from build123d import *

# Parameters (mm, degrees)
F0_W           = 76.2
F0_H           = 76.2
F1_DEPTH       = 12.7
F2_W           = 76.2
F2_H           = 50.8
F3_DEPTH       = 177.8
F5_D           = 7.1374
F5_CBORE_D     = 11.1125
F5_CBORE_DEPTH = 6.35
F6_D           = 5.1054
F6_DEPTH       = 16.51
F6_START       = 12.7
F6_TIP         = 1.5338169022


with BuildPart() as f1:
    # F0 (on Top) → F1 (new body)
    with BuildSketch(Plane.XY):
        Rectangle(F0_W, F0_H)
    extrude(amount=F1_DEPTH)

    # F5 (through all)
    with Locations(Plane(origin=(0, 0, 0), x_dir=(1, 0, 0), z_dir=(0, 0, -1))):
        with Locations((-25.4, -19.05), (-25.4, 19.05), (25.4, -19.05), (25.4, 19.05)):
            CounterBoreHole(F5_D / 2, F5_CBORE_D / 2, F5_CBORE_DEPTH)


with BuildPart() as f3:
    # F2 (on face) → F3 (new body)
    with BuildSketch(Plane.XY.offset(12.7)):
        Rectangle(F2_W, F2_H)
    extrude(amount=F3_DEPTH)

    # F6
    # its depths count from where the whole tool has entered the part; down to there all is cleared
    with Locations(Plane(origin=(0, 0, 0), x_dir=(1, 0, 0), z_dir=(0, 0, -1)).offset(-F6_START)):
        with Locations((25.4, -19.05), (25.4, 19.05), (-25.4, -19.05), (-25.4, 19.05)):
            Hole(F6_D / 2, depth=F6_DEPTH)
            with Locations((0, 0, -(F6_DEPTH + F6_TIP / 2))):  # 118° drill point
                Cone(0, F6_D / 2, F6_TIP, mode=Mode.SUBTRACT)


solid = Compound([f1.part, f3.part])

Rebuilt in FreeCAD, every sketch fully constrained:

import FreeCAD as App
import Part
import Sketcher
from FreeCAD import Vector
Q = App.Units.Quantity


def add_polygon(sketch, points):
    """Adds a closed chain of lines whose ends are joined by coincident constraints."""
    first, n = sketch.GeometryCount, len(points)
    for a, b in zip(points, points[1:] + points[:1]):
        sketch.addGeometry(Part.LineSegment(App.Vector(*a, 0), App.Vector(*b, 0)), False)
    for i in range(n):
        sketch.addConstraint(Sketcher.Constraint("Coincident", first + i, 2, first + (i + 1) % n, 1))

doc = App.newDocument("Part")
body = doc.addObject("PartDesign::Body", "Body")

sketch1 = doc.addObject("Sketcher::SketchObject", "Sketch")
body.addObject(sketch1)
sketch1.AttachmentSupport = (doc.XY_Plane, [""])
sketch1.MapMode = "FlatFace"
add_polygon(sketch1, [(-38, 38), (-38, -38), (38, -38), (38, 38)])
sketch1.addConstraint([
    Sketcher.Constraint("Vertical", 0),
    Sketcher.Constraint("Horizontal", 1),
    Sketcher.Constraint("Vertical", 2),
    Sketcher.Constraint("Horizontal", 3),
    Sketcher.Constraint("Symmetric", 0, 2, 2, 2, -1, 1),
    Sketcher.Constraint("Equal", 3, 0),
    Sketcher.Constraint("DistanceX", 1, 1, 1, 2, Q("3 in")),
])
pad1 = doc.addObject("PartDesign::Pad", "Pad")
body.addObject(pad1)
pad1.Profile = sketch1
pad1.Length = Q("0.5 in")

sketch2 = doc.addObject("Sketcher::SketchObject", "Sketch001")
body.addObject(sketch2)
sketch2.AttachmentSupport = (doc.XY_Plane, [""])
sketch2.MapMode = "FlatFace"
sketch2.addGeometry([
    Part.Circle(Vector(-25.4, 19.1, 0), Vector(0, 0, 1), 3.6),
    Part.Circle(Vector(-25.4, -19.1, 0), Vector(0, 0, 1), 3.6),
    Part.Circle(Vector(25.4, 19.1, 0), Vector(0, 0, 1), 3.6),
    Part.Circle(Vector(25.4, -19.1, 0), Vector(0, 0, 1), 3.6),
], False)
sketch2.addConstraint([
    Sketcher.Constraint("Equal", 0, 1),
    Sketcher.Constraint("Equal", 1, 2),
    Sketcher.Constraint("Equal", 2, 3),
    Sketcher.Constraint("Symmetric", 1, 3, 2, 3, -1, 1),
    Sketcher.Constraint("Symmetric", 0, 3, 3, 3, -1, 1),
    Sketcher.Constraint("Symmetric", 0, 3, 2, 3, -2),
    Sketcher.Constraint("Diameter", 0, Q("0.281 in")),
    Sketcher.Constraint("DistanceX", 0, 3, -1, 1, Q("1 in")),
    Sketcher.Constraint("DistanceY", 1, 3, 0, 3, Q("1.5 in")),
])
doc.recompute()
hole = doc.addObject("PartDesign::Hole", "Hole")
body.addObject(hole)
hole.Profile = sketch2
hole.ThreadType = "None"
hole.Diameter = Q("0.281 in")
hole.DepthType = "ThroughAll"
hole.HoleCutType = "Counterbore"
hole.HoleCutDiameter = Q("0.4375 in")
hole.HoleCutDepth = Q("0.25 in")
hole.Reversed = True
body2 = doc.addObject("PartDesign::Body", "Body001")

sketch3 = doc.addObject("Sketcher::SketchObject", "Sketch002")
body2.addObject(sketch3)
sketch3.AttachmentSupport = (doc.getObject("XY_Plane001"), [""])
sketch3.MapMode = "FlatFace"
sketch3.AttachmentOffset = App.Placement(Vector(0, 0, 0.5 * 25.4), App.Rotation())
add_polygon(sketch3, [(-38, 25), (-38, -25), (38, -25), (38, 25)])
sketch3.addConstraint([
    Sketcher.Constraint("Vertical", 0),
    Sketcher.Constraint("Horizontal", 1),
    Sketcher.Constraint("Vertical", 2),
    Sketcher.Constraint("Horizontal", 3),
    Sketcher.Constraint("Symmetric", 0, 2, 2, 2, -1, 1),
    Sketcher.Constraint("DistanceX", 1, 1, 1, 2, Q("3 in")),
    Sketcher.Constraint("DistanceY", 0, 2, 0, 1, Q("2 in")),
])
pad2 = doc.addObject("PartDesign::Pad", "Pad001")
body2.addObject(pad2)
pad2.Profile = sketch3
pad2.Length = Q("7 in")

sketch4 = doc.addObject("Sketcher::SketchObject", "Sketch003")
body2.addObject(sketch4)
sketch4.AttachmentSupport = (doc.getObject("XY_Plane001"), [""])
sketch4.MapMode = "FlatFace"
sketch4.AttachmentOffset = App.Placement(Vector(0, 0, 0.5 * 25.4), App.Rotation())
sketch4.addGeometry([
    Part.Circle(Vector(25.4, 19.1, 0), Vector(0, 0, 1), 2.6),
    Part.Circle(Vector(25.4, -19.1, 0), Vector(0, 0, 1), 2.6),
    Part.Circle(Vector(-25.4, 19.1, 0), Vector(0, 0, 1), 2.6),
    Part.Circle(Vector(-25.4, -19.1, 0), Vector(0, 0, 1), 2.6),
], False)
sketch4.addConstraint([
    Sketcher.Constraint("Equal", 0, 1),
    Sketcher.Constraint("Equal", 1, 2),
    Sketcher.Constraint("Equal", 2, 3),
    Sketcher.Constraint("Symmetric", 1, 3, 2, 3, -1, 1),
    Sketcher.Constraint("Symmetric", 0, 3, 3, 3, -1, 1),
    Sketcher.Constraint("Symmetric", 0, 3, 2, 3, -2),
    Sketcher.Constraint("Diameter", 0, Q("0.201 in")),
    Sketcher.Constraint("DistanceX", -1, 1, 0, 3, Q("1 in")),
    Sketcher.Constraint("DistanceY", 1, 3, 0, 3, Q("1.5 in")),
])
doc.recompute()
hole2 = doc.addObject("PartDesign::Hole", "Hole001")
body2.addObject(hole2)
hole2.Profile = sketch4
hole2.ThreadType = "None"
hole2.Diameter = Q("0.201 in")
hole2.DepthType = "Dimension"
hole2.Depth = Q("0.65 in")
hole2.DrillPoint = "Angled"
hole2.DrillPointAngle = 118
hole2.Reversed = True

doc.recompute()
